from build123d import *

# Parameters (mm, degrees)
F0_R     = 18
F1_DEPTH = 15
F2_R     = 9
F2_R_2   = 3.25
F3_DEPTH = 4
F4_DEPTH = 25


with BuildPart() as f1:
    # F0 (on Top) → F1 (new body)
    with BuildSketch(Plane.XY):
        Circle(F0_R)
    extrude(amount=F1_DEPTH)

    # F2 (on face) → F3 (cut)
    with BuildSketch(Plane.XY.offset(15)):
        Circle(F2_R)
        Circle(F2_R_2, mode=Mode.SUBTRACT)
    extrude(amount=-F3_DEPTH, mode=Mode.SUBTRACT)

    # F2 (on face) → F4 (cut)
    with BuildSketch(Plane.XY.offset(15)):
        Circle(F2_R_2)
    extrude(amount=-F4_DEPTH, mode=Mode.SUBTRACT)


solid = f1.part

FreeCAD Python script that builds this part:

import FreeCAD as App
import Part
import Sketcher
from FreeCAD import Vector

doc = App.newDocument("Part")
params = doc.addObject("Spreadsheet::Sheet", "Params")
for row, (alias, value) in enumerate([
    ("sketch1_diameter", "36 mm"),
    ("pad1_length", "15 mm"),
    ("sketch2_diameter", "18 mm"),
    ("sketch2_diameter2", "6.5 mm"),
    ("pocket1_length", "4 mm"),
    ("sketch3_diameter", "6.5 mm"),
    ("pocket2_length", "25 mm"),
], start=1):
    params.set(f"A{row}", alias)
    params.set(f"B{row}", "=" + value)
    params.setAlias(f"B{row}", alias)

body = doc.addObject("PartDesign::Body", "Body")

sketch1 = body.newObject("Sketcher::SketchObject", "Sketch")
sketch1.AttachmentSupport = (doc.getObject("XY_Plane"), [""])
sketch1.MapMode = "FlatFace"
sketch1.addGeometry(Part.Circle(Vector(0, 0, 0), Vector(0, 0, 1), 18), False)
sketch1.addConstraint([
    Sketcher.Constraint("Coincident", 0, 3, -1, 1),
    Sketcher.Constraint("Diameter", 0, 36.0),
])
sketch1.setExpression("Constraints[1]", "Params.sketch1_diameter")
pad1 = body.newObject("PartDesign::Pad", "Pad")
pad1.Profile = sketch1
pad1.setExpression("Length", "Params.pad1_length")

sketch2 = body.newObject("Sketcher::SketchObject", "Sketch001")
sketch2.AttachmentSupport = (doc.getObject("XY_Plane"), [""])
sketch2.MapMode = "FlatFace"
sketch2.AttachmentOffset = App.Placement(Vector(0, 0, 15), App.Rotation())
sketch2.addGeometry([
    Part.Circle(Vector(0, 0, 0), Vector(0, 0, 1), 9),
    Part.Circle(Vector(0, 0, 0), Vector(0, 0, 1), 3.2),
], False)
sketch2.addConstraint([
    Sketcher.Constraint("Coincident", 0, 3, -1, 1),
    Sketcher.Constraint("Coincident", 1, 3, -1, 1),
    Sketcher.Constraint("Diameter", 0, 18.0),
    Sketcher.Constraint("Diameter", 1, 6.5),
])
sketch2.setExpression("Constraints[2]", "Params.sketch2_diameter")
sketch2.setExpression("Constraints[3]", "Params.sketch2_diameter2")
pocket1 = body.newObject("PartDesign::Pocket", "Pocket")
pocket1.Profile = sketch2
pocket1.setExpression("Length", "Params.pocket1_length")

sketch3 = body.newObject("Sketcher::SketchObject", "Sketch002")
sketch3.AttachmentSupport = (doc.getObject("XY_Plane"), [""])
sketch3.MapMode = "FlatFace"
sketch3.AttachmentOffset = App.Placement(Vector(0, 0, 15), App.Rotation())
sketch3.addGeometry(Part.Circle(Vector(0, 0, 0), Vector(0, 0, 1), 3.2), False)
sketch3.addConstraint([
    Sketcher.Constraint("Coincident", 0, 3, -1, 1),
    Sketcher.Constraint("Diameter", 0, 6.5),
])
sketch3.setExpression("Constraints[1]", "Params.sketch3_diameter")
pocket2 = body.newObject("PartDesign::Pocket", "Pocket001")
pocket2.Profile = sketch3
pocket2.setExpression("Length", "Params.pocket2_length")

doc.recompute()
